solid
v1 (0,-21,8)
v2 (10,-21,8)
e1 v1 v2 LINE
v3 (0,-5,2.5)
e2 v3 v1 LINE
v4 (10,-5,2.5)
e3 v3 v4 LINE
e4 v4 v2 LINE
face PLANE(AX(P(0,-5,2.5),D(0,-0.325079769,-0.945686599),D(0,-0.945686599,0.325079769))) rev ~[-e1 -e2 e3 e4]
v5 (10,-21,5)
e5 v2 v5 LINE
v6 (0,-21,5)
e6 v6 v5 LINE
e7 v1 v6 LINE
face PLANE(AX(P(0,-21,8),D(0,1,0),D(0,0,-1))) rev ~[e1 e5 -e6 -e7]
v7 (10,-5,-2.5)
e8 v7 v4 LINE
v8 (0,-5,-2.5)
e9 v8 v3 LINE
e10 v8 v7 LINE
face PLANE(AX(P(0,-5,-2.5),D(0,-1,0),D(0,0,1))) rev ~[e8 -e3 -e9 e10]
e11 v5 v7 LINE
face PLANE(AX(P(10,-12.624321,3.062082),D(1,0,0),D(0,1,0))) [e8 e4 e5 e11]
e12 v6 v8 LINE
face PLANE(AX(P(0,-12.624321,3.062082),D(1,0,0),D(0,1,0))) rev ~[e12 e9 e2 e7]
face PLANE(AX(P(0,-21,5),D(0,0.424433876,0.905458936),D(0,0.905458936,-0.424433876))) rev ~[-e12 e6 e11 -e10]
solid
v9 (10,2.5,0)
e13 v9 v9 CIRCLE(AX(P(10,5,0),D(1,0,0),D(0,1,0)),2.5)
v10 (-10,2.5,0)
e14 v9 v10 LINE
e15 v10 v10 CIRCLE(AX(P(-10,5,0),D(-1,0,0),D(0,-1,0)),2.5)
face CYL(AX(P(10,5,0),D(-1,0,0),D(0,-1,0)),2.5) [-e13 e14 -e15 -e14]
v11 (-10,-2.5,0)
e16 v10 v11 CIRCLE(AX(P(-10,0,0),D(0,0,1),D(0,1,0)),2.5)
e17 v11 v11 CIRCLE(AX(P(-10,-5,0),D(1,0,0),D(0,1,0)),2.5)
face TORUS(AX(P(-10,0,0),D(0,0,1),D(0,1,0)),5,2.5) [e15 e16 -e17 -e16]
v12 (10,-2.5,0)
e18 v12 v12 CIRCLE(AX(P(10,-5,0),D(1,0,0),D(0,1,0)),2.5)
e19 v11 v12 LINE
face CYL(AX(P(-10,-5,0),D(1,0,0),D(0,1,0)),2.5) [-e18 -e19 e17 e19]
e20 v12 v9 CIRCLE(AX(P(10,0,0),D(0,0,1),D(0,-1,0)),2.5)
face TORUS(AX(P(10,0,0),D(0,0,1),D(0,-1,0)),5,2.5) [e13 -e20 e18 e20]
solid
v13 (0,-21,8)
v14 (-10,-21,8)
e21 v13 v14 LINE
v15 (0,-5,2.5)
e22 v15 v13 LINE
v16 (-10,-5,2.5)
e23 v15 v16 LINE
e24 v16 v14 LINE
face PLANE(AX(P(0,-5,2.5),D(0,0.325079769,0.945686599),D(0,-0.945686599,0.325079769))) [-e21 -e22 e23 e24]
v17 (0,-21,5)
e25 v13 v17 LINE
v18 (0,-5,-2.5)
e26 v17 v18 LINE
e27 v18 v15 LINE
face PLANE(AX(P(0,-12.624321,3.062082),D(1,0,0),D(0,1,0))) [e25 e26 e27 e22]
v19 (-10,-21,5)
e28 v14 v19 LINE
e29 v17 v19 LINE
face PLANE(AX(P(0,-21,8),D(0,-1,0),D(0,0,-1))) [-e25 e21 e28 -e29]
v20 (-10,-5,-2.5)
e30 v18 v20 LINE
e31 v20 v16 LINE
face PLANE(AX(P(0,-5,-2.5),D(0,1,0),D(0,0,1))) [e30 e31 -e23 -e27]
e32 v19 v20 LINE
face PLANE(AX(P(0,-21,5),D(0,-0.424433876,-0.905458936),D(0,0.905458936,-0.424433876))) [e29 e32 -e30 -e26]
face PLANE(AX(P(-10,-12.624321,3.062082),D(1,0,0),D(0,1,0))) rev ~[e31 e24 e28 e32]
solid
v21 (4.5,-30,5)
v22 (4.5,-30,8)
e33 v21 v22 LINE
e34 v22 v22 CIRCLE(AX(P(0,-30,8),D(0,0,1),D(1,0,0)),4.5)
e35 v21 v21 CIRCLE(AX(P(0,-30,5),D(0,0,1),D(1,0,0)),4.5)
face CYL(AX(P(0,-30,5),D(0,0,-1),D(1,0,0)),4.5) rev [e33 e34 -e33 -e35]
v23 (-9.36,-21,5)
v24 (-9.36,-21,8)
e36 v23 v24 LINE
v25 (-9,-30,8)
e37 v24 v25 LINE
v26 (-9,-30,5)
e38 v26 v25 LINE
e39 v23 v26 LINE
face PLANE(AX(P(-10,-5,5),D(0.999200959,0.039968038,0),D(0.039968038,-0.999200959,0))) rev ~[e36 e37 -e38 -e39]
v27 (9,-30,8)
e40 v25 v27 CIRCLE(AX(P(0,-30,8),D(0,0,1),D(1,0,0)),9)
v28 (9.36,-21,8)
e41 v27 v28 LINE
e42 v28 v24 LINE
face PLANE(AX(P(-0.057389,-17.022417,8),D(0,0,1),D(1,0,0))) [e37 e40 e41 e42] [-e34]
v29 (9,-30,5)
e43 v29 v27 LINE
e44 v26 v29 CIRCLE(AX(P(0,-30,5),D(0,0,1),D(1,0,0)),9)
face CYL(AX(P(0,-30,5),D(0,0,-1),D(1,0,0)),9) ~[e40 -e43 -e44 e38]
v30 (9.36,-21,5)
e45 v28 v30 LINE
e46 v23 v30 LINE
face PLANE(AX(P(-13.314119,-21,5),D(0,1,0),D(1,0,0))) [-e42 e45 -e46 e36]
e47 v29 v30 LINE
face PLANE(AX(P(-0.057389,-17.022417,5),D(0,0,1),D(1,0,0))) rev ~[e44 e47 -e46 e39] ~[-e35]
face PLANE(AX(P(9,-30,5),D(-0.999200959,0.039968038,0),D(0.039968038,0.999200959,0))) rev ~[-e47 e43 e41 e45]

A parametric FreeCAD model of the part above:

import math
import FreeCAD as App
import Part
import Sketcher
Q = App.Units.Quantity


def add_polygon(sketch, points):
    """Adds a closed chain of lines whose ends are joined by coincident constraints."""
    first, n = sketch.GeometryCount, len(points)
    for a, b in zip(points, points[1:] + points[:1]):
        sketch.addGeometry(Part.LineSegment(App.Vector(*a, 0), App.Vector(*b, 0)), False)
    for i in range(n):
        sketch.addConstraint(Sketcher.Constraint("Coincident", first + i, 2, first + (i + 1) % n, 1))

doc = App.newDocument("Part")
params = doc.addObject("Spreadsheet::Sheet", "Params")
for row, (alias, value) in enumerate([
    ("sketch1_diameter", "18 mm"),
    ("sketch1_diameter2", "9 mm"),
    ("pad1_length", "3 mm"),
    ("sketch2_width", "20 mm"),
    ("pad2_length", "3 mm"),
    ("pocket1_length", "3.1 mm"),
    ("sketch4_height", "5 mm"),
    ("sketch4_height2", "3 mm"),
    ("pad3_length", "10 mm"),
    ("sketch5_height", "5 mm"),
    ("sketch5_height2", "3 mm"),
    ("pad4_length", "10 mm"),
    ("sketch6_diameter", "5 mm"),
    ("sketch7_radius", "2.5 mm"),
    ("sketch7_width", "20 mm"),
], start=1):
    params.set(f"A{row}", alias)
    params.set(f"B{row}", "=" + value)
    params.setAlias(f"B{row}", alias)

body = doc.addObject("PartDesign::Body", "Body")

# Sketch on XY plane
sketch1 = body.newObject("Sketcher::SketchObject", "Sketch")
sketch1.AttachmentSupport = (doc.getObject("XY_Plane"), [""])
sketch1.MapMode = "FlatFace"
sketch1.AttachmentOffset = App.Placement(App.Vector(0, 0, 5), App.Rotation())
sketch1.addGeometry([
    Part.Circle(App.Vector(0, -30, 0), App.Vector(0, 0, 1), 9),
    Part.Circle(App.Vector(0, -30, 0), App.Vector(0, 0, 1), 4.5),
], False)
sketch1.addConstraint([
    Sketcher.Constraint("Coincident", 1, 3, 0, 3),
    Sketcher.Constraint("PointOnObject", 0, 3, -2),
    Sketcher.Constraint("Diameter", 0, Q("18 mm")),
    Sketcher.Constraint("Diameter", 1, Q("9 mm")),
    Sketcher.Constraint("DistanceY", 0, 3, -1, 1, Q("30 mm")),
])
sketch1.setExpression("Constraints[2]", "Params.sketch1_diameter")
sketch1.setExpression("Constraints[3]", "Params.sketch1_diameter2")
pad1 = body.newObject("PartDesign::Pad", "Pad")
pad1.Profile = sketch1
pad1.setExpression("Length", "Params.pad1_length")

# Sketch on XY plane
sketch2 = body.newObject("Sketcher::SketchObject", "Sketch001")
sketch2.AttachmentSupport = (doc.getObject("XY_Plane"), [""])
sketch2.MapMode = "FlatFace"
sketch2.AttachmentOffset = App.Placement(App.Vector(0, 0, 5), App.Rotation())
add_polygon(sketch2, [(10, -5), (-10, -5), (-9, -30), (-1, -24), (9, -30)])  # lines 0-4
sketch2.addConstraint([
    Sketcher.Constraint("Horizontal", 0),
    Sketcher.Constraint("Symmetric", 1, 2, 3, 2, -2),
    Sketcher.Constraint("Equal", 1, 4),
    Sketcher.Constraint("DistanceX", 0, 2, 0, 1, Q("20 mm")),
    Sketcher.Constraint("DistanceY", 0, 2, -1, 1, Q("5 mm")),
    Sketcher.Constraint("DistanceX", 1, 2, -1, 1, Q("9 mm")),
    Sketcher.Constraint("DistanceY", 1, 2, -1, 1, Q("30 mm")),
    Sketcher.Constraint("Distance", 2, Q("9.888531 mm")),
    Sketcher.Constraint("Distance", 3, Q("12.206928 mm")),
])
sketch2.setExpression("Constraints[8]", "Params.sketch2_width")
pad2 = body.newObject("PartDesign::Pad", "Pad001")
pad2.Profile = sketch2
pad2.setExpression("Length", "Params.pad2_length")

# Sketch on XY plane
sketch3 = body.newObject("Sketcher::SketchObject", "Sketch002")
sketch3.AttachmentSupport = (doc.getObject("XY_Plane"), [""])
sketch3.MapMode = "FlatFace"
sketch3.AttachmentOffset = App.Placement(App.Vector(0, 0, 5), App.Rotation())
add_polygon(sketch3, [(-13, -21), (14, -21), (14, -2), (-14, -2)])  # lines 0-3
sketch3.addConstraint([
    Sketcher.Constraint("Horizontal", 0),
    Sketcher.Constraint("Vertical", 1),
    Sketcher.Constraint("Horizontal", 2),
    Sketcher.Constraint("DistanceY", 0, 2, -1, 1, Q("21 mm")),
    Sketcher.Constraint("Distance", 3, Q("19.278399 mm")),
    Sketcher.Constraint("DistanceX", 0, 1, 0, 2, Q("26.910972 mm")),
    Sketcher.Constraint("DistanceX", 2, 2, 2, 1, Q("28.061347 mm")),
    Sketcher.Constraint("DistanceX", 3, 2, -1, 1, Q("13.314119 mm")),
])
pocket1 = body.newObject("PartDesign::Pocket", "Pocket")
pocket1.Profile = sketch3
pocket1.setExpression("Length", "Params.pocket1_length")
pocket1.Reversed = True
body2 = doc.addObject("PartDesign::Body", "Body001")

# Sketch on YZ plane
sketch4 = body2.newObject("Sketcher::SketchObject", "Sketch003")
sketch4.AttachmentSupport = (doc.getObject("YZ_Plane001"), [""])
sketch4.MapMode = "FlatFace"
add_polygon(sketch4, [(-21, 5), (-5, -2.5), (-5, 2.5), (-21, 8)])  # lines 0-3
sketch4.addConstraint([
    Sketcher.Constraint("Vertical", 1),
    Sketcher.Constraint("Vertical", 3),
    Sketcher.Constraint("DistanceY", 1, 1, 1, 2, Q("5 mm")),
    Sketcher.Constraint("DistanceY", 3, 2, 3, 1, Q("3 mm")),
    Sketcher.Constraint("DistanceX", 0, 2, -1, 1, Q("5 mm")),
    Sketcher.Constraint("DistanceX", 2, 2, -1, 1, Q("21 mm")),
    Sketcher.Constraint("DistanceY", -1, 1, 2, 2, Q("8 mm")),
    Sketcher.Constraint("DistanceY", 0, 2, -1, 1, Q("2.5 mm")),
])
sketch4.setExpression("Constraints[6]", "Params.sketch4_height")
sketch4.setExpression("Constraints[7]", "Params.sketch4_height2")
pad3 = body2.newObject("PartDesign::Pad", "Pad002")
pad3.Profile = sketch4
pad3.setExpression("Length", "Params.pad3_length")
body3 = doc.addObject("PartDesign::Body", "Body002")

# Sketch on YZ plane
sketch5 = body3.newObject("Sketcher::SketchObject", "Sketch004")
sketch5.AttachmentSupport = (doc.getObject("YZ_Plane002"), [""])
sketch5.MapMode = "FlatFace"
add_polygon(sketch5, [(-21, 5), (-5, -2.5), (-5, 2.5), (-21, 8)])  # lines 0-3
sketch5.addConstraint([
    Sketcher.Constraint("Vertical", 1),
    Sketcher.Constraint("Vertical", 3),
    Sketcher.Constraint("DistanceY", 1, 1, 1, 2, Q("5 mm")),
    Sketcher.Constraint("DistanceY", 3, 2, 3, 1, Q("3 mm")),
    Sketcher.Constraint("DistanceX", 0, 2, -1, 1, Q("5 mm")),
    Sketcher.Constraint("DistanceX", 2, 2, -1, 1, Q("21 mm")),
    Sketcher.Constraint("DistanceY", -1, 1, 2, 2, Q("8 mm")),
    Sketcher.Constraint("DistanceY", 0, 2, -1, 1, Q("2.5 mm")),
])
sketch5.setExpression("Constraints[6]", "Params.sketch5_height")
sketch5.setExpression("Constraints[7]", "Params.sketch5_height2")
pad4 = body3.newObject("PartDesign::Pad", "Pad003")
pad4.Profile = sketch5
pad4.setExpression("Length", "Params.pad4_length")
pad4.Reversed = True
body4 = doc.addObject("PartDesign::Body", "Body003")

# Sketch on YZ plane
sketch6 = body4.newObject("Sketcher::SketchObject", "Sketch005")
sketch6.AttachmentSupport = (doc.getObject("YZ_Plane003"), [""])
sketch6.MapMode = "FlatFace"
sketch6.addGeometry(Part.Circle(App.Vector(-5, 0, 0), App.Vector(0, 0, 1), 2.5), False)
sketch6.addConstraint([
    Sketcher.Constraint("PointOnObject", 0, 3, -1),
    Sketcher.Constraint("Diameter", 0, Q("5 mm")),
    Sketcher.Constraint("DistanceX", 0, 3, -1, 1, Q("5 mm")),
])
sketch6.setExpression("Constraints[1]", "Params.sketch6_diameter")

# Sketch on XY plane
sketch7 = body4.newObject("Sketcher::SketchObject", "Sketch006")
sketch7.AttachmentSupport = (doc.getObject("XY_Plane003"), [""])
sketch7.MapMode = "FlatFace"
sketch7.addGeometry([
    Part.LineSegment(App.Vector(-10, -2.5, 0), App.Vector(10, -2.5, 0)),
    Part.ArcOfCircle(Part.Circle(App.Vector(10, 0, 0), App.Vector(0, 0, 1), 2.5), math.radians(-90), math.radians(90)),
    Part.LineSegment(App.Vector(10, 2.5, 0), App.Vector(-10, 2.5, 0)),
    Part.ArcOfCircle(Part.Circle(App.Vector(-10, 0, 0), App.Vector(0, 0, 1), 2.5), math.radians(90), math.radians(270)),
], False)
sketch7.addConstraint([
    Sketcher.Constraint("Tangent", 0, 2, 1, 1),
    Sketcher.Constraint("Tangent", 1, 2, 2, 1),
    Sketcher.Constraint("Tangent", 2, 2, 3, 1),
    Sketcher.Constraint("Tangent", 3, 2, 0, 1),
    Sketcher.Constraint("Horizontal", 0),
    Sketcher.Constraint("Horizontal", 2),
    Sketcher.Constraint("Symmetric", 1, 3, 3, 3, -1, 1),
    Sketcher.Constraint("Radius", 1, Q("2.5 mm")),
    Sketcher.Constraint("DistanceX", 0, 1, 0, 2, Q("20 mm")),
])
sketch7.setExpression("Constraints[7]", "Params.sketch7_radius")
sketch7.setExpression("Constraints[8]", "Params.sketch7_width")
doc.recompute()

additivepipe = body4.newObject("PartDesign::AdditivePipe", "AdditivePipe")
additivepipe.Profile = sketch6
additivepipe.Spine = (sketch7, ["Edge1", "Edge2", "Edge3", "Edge4"])

doc.recompute()
